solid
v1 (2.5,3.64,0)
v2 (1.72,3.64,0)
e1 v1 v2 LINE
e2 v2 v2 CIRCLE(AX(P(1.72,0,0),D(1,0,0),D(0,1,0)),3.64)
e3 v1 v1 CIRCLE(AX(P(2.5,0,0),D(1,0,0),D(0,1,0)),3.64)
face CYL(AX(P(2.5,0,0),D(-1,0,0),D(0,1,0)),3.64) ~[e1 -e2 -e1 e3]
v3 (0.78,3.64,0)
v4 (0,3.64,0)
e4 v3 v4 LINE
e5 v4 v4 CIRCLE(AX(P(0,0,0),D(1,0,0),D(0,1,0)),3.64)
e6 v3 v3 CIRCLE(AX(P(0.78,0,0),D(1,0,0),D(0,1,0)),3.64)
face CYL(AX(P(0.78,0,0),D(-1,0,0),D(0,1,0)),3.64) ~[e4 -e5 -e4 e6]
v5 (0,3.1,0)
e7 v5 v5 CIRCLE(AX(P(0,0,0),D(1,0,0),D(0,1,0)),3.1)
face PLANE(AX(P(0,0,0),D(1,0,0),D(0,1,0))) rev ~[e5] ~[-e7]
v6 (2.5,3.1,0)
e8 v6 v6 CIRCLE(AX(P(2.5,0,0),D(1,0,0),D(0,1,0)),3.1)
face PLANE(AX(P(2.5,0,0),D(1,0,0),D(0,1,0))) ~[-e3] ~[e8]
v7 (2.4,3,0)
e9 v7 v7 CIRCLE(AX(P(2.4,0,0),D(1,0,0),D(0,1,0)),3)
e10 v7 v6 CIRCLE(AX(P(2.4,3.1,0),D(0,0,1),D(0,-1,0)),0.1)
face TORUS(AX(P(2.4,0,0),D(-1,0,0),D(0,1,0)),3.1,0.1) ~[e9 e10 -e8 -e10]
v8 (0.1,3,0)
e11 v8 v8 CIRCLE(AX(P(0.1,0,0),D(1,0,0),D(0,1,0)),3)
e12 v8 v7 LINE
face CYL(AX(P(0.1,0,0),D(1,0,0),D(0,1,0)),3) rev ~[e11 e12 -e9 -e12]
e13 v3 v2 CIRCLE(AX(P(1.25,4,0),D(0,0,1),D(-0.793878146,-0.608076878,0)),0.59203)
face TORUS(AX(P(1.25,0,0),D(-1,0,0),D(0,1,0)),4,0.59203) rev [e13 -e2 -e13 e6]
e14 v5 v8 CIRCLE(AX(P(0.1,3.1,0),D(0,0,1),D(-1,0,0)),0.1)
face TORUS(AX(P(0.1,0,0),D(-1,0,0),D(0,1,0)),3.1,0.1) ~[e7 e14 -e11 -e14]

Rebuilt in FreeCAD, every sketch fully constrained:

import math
import FreeCAD as App
import Part
import Sketcher

doc = App.newDocument("Part")
body = doc.addObject("PartDesign::Body", "Body")

sketch1 = body.newObject("Sketcher::SketchObject", "Sketch")
sketch1.AttachmentSupport = (doc.getObject("XY_Plane"), [""])
sketch1.MapMode = "FlatFace"
sketch1.addGeometry([
    Part.LineSegment(App.Vector(0, 3.64, 0), App.Vector(0, 3.1, 0)),
    Part.ArcOfCircle(Part.Circle(App.Vector(0.1, 3.1, 0), App.Vector(0, 0, 1), 0.1), math.radians(180), math.radians(270)),
    Part.LineSegment(App.Vector(0.1, 3, 0), App.Vector(2.4, 3, 0)),
    Part.ArcOfCircle(Part.Circle(App.Vector(2.4, 3.1, 0), App.Vector(0, 0, 1), 0.1), math.radians(-90), math.radians(0)),
    Part.LineSegment(App.Vector(2.5, 3.1, 0), App.Vector(2.5, 3.64, 0)),
    Part.LineSegment(App.Vector(2.5, 3.64, 0), App.Vector(1.72, 3.64, 0)),
    Part.ArcOfCircle(Part.Circle(App.Vector(1.25, 4, 0), App.Vector(0, 0, 1), 0.59), math.radians(-143), math.radians(-37)),
    Part.LineSegment(App.Vector(0.78, 3.64, 0), App.Vector(0, 3.64, 0)),
], False)
sketch1.addConstraint([
    Sketcher.Constraint("Tangent", 0, 2, 1, 1),
    Sketcher.Constraint("Tangent", 1, 2, 2, 1),
    Sketcher.Constraint("Tangent", 2, 2, 3, 1),
    Sketcher.Constraint("Tangent", 3, 2, 4, 1),
    Sketcher.Constraint("Coincident", 4, 2, 5, 1),
    Sketcher.Constraint("Coincident", 5, 2, 6, 2),
    Sketcher.Constraint("Coincident", 6, 1, 7, 1),
    Sketcher.Constraint("Coincident", 7, 2, 0, 1),
    Sketcher.Constraint("Vertical", 0),
    Sketcher.Constraint("Horizontal", 2),
    Sketcher.Constraint("Vertical", 4),
    Sketcher.Constraint("Horizontal", 5),
    Sketcher.Constraint("Horizontal", 7),
    Sketcher.Constraint("Equal", 1, 3),
    Sketcher.Constraint("PointOnObject", 0, 2, -2),
    Sketcher.Constraint("Horizontal", 5, 2, 6, 1),
    Sketcher.Constraint("Equal", 5, 7),
    Sketcher.Constraint("Radius", 1, 0.1),
    Sketcher.Constraint("DistanceX", 2, 1, 2, 2, 2.3),
    Sketcher.Constraint("DistanceY", -1, 1, 6, 3, 4.0),
    Sketcher.Constraint("DistanceY", -1, 1, 1, 2, 3.0),
    Sketcher.Constraint("Radius", 6, 0.592),
    Sketcher.Constraint("DistanceX", 5, 2, 5, 1, 0.78),
])
revolution = body.newObject("PartDesign::Revolution", "Revolution")
revolution.Profile = sketch1
revolution.ReferenceAxis = (sketch1, ["H_Axis"])
revolution.Angle = 360

doc.recompute()
